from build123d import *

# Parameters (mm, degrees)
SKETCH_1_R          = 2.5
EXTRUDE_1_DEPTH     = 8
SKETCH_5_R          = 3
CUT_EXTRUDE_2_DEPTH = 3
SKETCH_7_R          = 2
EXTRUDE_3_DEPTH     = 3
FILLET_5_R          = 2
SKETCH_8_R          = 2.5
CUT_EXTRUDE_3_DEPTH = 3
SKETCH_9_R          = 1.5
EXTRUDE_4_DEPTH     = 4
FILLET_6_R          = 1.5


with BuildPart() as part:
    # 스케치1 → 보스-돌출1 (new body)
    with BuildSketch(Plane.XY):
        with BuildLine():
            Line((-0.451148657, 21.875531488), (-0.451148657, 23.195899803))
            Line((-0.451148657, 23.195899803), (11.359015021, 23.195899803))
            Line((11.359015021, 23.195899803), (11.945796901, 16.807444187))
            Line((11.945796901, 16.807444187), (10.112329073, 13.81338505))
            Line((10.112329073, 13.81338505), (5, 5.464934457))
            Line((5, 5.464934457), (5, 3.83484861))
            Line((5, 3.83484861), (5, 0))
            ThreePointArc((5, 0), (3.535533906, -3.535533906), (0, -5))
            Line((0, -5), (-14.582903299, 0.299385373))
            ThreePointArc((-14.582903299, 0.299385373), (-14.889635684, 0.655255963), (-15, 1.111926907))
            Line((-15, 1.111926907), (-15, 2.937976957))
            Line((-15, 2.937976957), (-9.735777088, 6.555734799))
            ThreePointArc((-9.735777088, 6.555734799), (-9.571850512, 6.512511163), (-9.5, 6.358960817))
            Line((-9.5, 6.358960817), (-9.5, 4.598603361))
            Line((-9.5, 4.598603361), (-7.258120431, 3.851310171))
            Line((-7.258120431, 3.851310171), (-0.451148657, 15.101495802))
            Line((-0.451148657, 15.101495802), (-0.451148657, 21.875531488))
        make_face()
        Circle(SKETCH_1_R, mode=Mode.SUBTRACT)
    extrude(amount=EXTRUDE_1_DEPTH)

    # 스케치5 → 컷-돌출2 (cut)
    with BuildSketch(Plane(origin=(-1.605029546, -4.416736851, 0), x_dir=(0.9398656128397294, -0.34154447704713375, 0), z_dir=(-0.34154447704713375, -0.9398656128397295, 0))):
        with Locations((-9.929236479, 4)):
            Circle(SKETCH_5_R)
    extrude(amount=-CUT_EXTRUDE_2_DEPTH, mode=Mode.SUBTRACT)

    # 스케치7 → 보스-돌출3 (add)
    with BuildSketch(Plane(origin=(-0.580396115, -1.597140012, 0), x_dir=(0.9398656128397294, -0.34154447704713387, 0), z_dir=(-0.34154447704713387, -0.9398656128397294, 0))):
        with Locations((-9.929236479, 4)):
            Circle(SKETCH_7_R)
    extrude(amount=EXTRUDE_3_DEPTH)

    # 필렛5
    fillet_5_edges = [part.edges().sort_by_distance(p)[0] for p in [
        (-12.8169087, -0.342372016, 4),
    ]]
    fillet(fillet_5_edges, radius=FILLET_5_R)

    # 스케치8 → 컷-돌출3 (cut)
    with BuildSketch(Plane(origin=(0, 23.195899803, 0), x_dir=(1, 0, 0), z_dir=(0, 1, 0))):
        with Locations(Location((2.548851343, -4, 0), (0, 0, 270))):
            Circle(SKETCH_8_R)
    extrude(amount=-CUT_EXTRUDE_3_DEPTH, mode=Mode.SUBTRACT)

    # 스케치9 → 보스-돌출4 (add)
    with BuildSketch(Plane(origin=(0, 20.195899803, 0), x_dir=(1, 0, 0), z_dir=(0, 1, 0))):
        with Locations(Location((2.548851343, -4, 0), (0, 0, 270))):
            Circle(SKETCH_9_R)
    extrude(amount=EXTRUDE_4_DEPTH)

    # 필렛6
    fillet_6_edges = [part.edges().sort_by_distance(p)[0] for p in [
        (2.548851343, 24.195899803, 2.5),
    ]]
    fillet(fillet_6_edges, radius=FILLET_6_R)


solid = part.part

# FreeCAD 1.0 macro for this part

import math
import FreeCAD as App
import Part
import Sketcher
from FreeCAD import Vector


def edges_at(feature, points):
    """Names of the edges that pass closest to the given points."""
    edges = feature.Shape.Edges
    near = lambda p: min(range(len(edges)), key=lambda i: edges[i].distToShape(Part.Vertex(*p))[0])
    return sorted({f"Edge{near(p) + 1}" for p in points})

doc = App.newDocument("Part")
params = doc.addObject("Spreadsheet::Sheet", "Params")
for row, (alias, value) in enumerate([
    ("sketch1_diameter", "5 mm"),
    ("sketch1_radius", "1 mm"),
    ("sketch1_radius2", "5 mm"),
    ("sketch1_radius3", "0.2 mm"),
    ("pad1_length", "8 mm"),
    ("sketch2_diameter", "6 mm"),
    ("pocket1_length", "3 mm"),
    ("sketch3_diameter", "4 mm"),
    ("pad2_length", "3 mm"),
    ("fillet_radius", "2 mm"),
    ("sketch4_diameter", "5 mm"),
    ("pocket2_length", "3 mm"),
    ("sketch5_diameter", "3 mm"),
    ("pad3_length", "4 mm"),
    ("fillet2_radius", "1.5 mm"),
], start=1):
    params.set(f"A{row}", alias)
    params.set(f"B{row}", "=" + value)
    params.setAlias(f"B{row}", alias)

body = doc.addObject("PartDesign::Body", "Body")

# Sketch on XY plane
sketch1 = body.newObject("Sketcher::SketchObject", "Sketch")
sketch1.AttachmentSupport = (doc.getObject("XY_Plane"), [""])
sketch1.MapMode = "FlatFace"
sketch1.addGeometry(Part.LineSegment(Vector(11.36, 23.2, 0), Vector(-0.45, 23.2, 0)), False)
sketch1.addGeometry(Part.LineSegment(Vector(-0.45, 23.2, 0), Vector(-0.45, 15.1, 0)), False)
sketch1.addGeometry(Part.LineSegment(Vector(-0.45, 15.1, 0), Vector(-7.26, 3.85, 0)), False)
sketch1.addGeometry(Part.LineSegment(Vector(-7.26, 3.85, 0), Vector(-9.5, 4.6, 0)), False)
sketch1.addGeometry(Part.LineSegment(Vector(-9.5, 4.6, 0), Vector(-9.5, 6.36, 0)), False)
sketch1.addGeometry(Part.ArcOfCircle(Part.Circle(Vector(-9.7, 6.36, 0), Vector(0, 0, 1), 0.2), math.radians(0), math.radians(100)), False)
sketch1.addGeometry(Part.LineSegment(Vector(-9.74, 6.56, 0), Vector(-15, 2.94, 0)), False)
sketch1.addGeometry(Part.LineSegment(Vector(-15, 2.94, 0), Vector(-15, 1.11, 0)), False)
sketch1.addGeometry(Part.ArcOfCircle(Part.Circle(Vector(-14, 1.11, 0), Vector(0, 0, 1), 1), math.radians(180), math.radians(234)), False)
sketch1.addGeometry(Part.LineSegment(Vector(-14.58, 0.3, 0), Vector(0, -5, 0)), False)
sketch1.addGeometry(Part.ArcOfCircle(Part.Circle(Vector(0, 0, 0), Vector(0, 0, 1), 5), math.radians(-90), math.radians(0)), False)
sketch1.addGeometry(Part.LineSegment(Vector(5, 0, 0), Vector(5, 5.46, 0)), False)
sketch1.addGeometry(Part.LineSegment(Vector(5, 5.46, 0), Vector(10.11, 13.81, 0)), False)
sketch1.addGeometry(Part.LineSegment(Vector(10.11, 13.81, 0), Vector(11.95, 16.81, 0)), False)
sketch1.addGeometry(Part.LineSegment(Vector(11.95, 16.81, 0), Vector(11.36, 23.2, 0)), False)
sketch1.addGeometry(Part.Circle(Vector(0, 0, 0), Vector(0, 0, 1), 2.5), False)
sketch1.addConstraint(Sketcher.Constraint("Coincident", 0, 2, 1, 1))
sketch1.addConstraint(Sketcher.Constraint("Coincident", 1, 2, 2, 1))
sketch1.addConstraint(Sketcher.Constraint("Coincident", 2, 2, 3, 1))
sketch1.addConstraint(Sketcher.Constraint("Coincident", 3, 2, 4, 1))
sketch1.addConstraint(Sketcher.Constraint("Tangent", 4, 2, 5, 1))
sketch1.addConstraint(Sketcher.Constraint("Coincident", 5, 2, 6, 1))
sketch1.addConstraint(Sketcher.Constraint("Coincident", 6, 2, 7, 1))
sketch1.addConstraint(Sketcher.Constraint("Tangent", 7, 2, 8, 1))
sketch1.addConstraint(Sketcher.Constraint("Coincident", 8, 2, 9, 1))
sketch1.addConstraint(Sketcher.Constraint("Coincident", 9, 2, 10, 1))
sketch1.addConstraint(Sketcher.Constraint("Tangent", 10, 2, 11, 1))
sketch1.addConstraint(Sketcher.Constraint("Coincident", 11, 2, 12, 1))
sketch1.addConstraint(Sketcher.Constraint("Coincident", 12, 2, 13, 1))
sketch1.addConstraint(Sketcher.Constraint("Coincident", 13, 2, 14, 1))
sketch1.addConstraint(Sketcher.Constraint("Coincident", 14, 2, 0, 1))
sketch1.addConstraint(Sketcher.Constraint("Horizontal", 0))
sketch1.addConstraint(Sketcher.Constraint("Vertical", 1))
sketch1.addConstraint(Sketcher.Constraint("Vertical", 4))
sketch1.addConstraint(Sketcher.Constraint("Vertical", 7))
sketch1.addConstraint(Sketcher.Constraint("Vertical", 11))
sketch1.addConstraint(Sketcher.Constraint("Coincident", 10, 3, -1, 1))
sketch1.addConstraint(Sketcher.Constraint("Coincident", 15, 3, -1, 1))
sketch1.addConstraint(Sketcher.Constraint("PointOnObject", 9, 2, -2))
sketch1.addConstraint(Sketcher.Constraint("Parallel", 12, 13))
sketch1.addConstraint(Sketcher.Constraint("Diameter", 15, 5.0))
sketch1.addConstraint(Sketcher.Constraint("Radius", 8, 1.0))
sketch1.addConstraint(Sketcher.Constraint("Radius", 10, 5.0))
sketch1.addConstraint(Sketcher.Constraint("Radius", 5, 0.2))
sketch1.addConstraint(Sketcher.Constraint("DistanceX", 8, 3, -1, 1, 14.0))
sketch1.addConstraint(Sketcher.Constraint("DistanceX", 5, 3, -1, 1, 9.7))
sketch1.addConstraint(Sketcher.Constraint("DistanceY", 7, 2, 7, 1, 1.82605))
sketch1.addConstraint(Sketcher.Constraint("DistanceY", -1, 1, 0, 2, 23.1959))
sketch1.addConstraint(Sketcher.Constraint("Distance", 3, 2.363149))
sketch1.addConstraint(Sketcher.Constraint("Distance", 12, 9.789409))
sketch1.addConstraint(Sketcher.Constraint("Distance", 13, 3.51084))
sketch1.addConstraint(Sketcher.Constraint("DistanceX", 0, 2, 0, 1, 11.810164))
sketch1.addConstraint(Sketcher.Constraint("DistanceY", 1, 2, 1, 1, 8.094404))
sketch1.addConstraint(Sketcher.Constraint("DistanceY", 4, 1, 4, 2, 1.760357))
sketch1.addConstraint(Sketcher.Constraint("DistanceY", 11, 1, 11, 2, 5.464934))
sketch1.addConstraint(Sketcher.Constraint("DistanceY", -1, 1, 5, 3, 6.358961))
sketch1.addConstraint(Sketcher.Constraint("DistanceX", 0, 2, -1, 1, 0.451149))
sketch1.addConstraint(Sketcher.Constraint("DistanceX", 2, 2, -1, 1, 7.25812))
sketch1.addConstraint(Sketcher.Constraint("DistanceX", -1, 1, 12, 2, 10.112329))
sketch1.addConstraint(Sketcher.Constraint("DistanceY", 8, 3, 1, 2, 13.989569))
sketch1.addConstraint(Sketcher.Constraint("DistanceY", 3, 2, 5, 2, 1.957131))
sketch1.addConstraint(Sketcher.Constraint("DistanceY", 8, 2, 7, 2, 0.812542))
sketch1.setExpression("Constraints[24]", "Params.sketch1_diameter")
sketch1.setExpression("Constraints[25]", "Params.sketch1_radius")
sketch1.setExpression("Constraints[26]", "Params.sketch1_radius2")
sketch1.setExpression("Constraints[27]", "Params.sketch1_radius3")
pad1 = body.newObject("PartDesign::Pad", "Pad")
pad1.Profile = sketch1
pad1.setExpression("Length", "Params.pad1_length")

# Sketch on an angled plane
sketch2 = body.newObject("Sketcher::SketchObject", "Sketch001")
sketch2.Placement = App.Placement(Vector(-1.60503, -4.416737, 0), App.Rotation(Vector(0.939865613, -0.341544477, 0), Vector(0, 0, 1), Vector(-0.341544477, -0.939865613, 0), "ZXY"))
sketch2.addGeometry(Part.Circle(Vector(-9.9, 4, 0), Vector(0, 0, 1), 3), False)
sketch2.addConstraint(Sketcher.Constraint("Diameter", 0, 6.0))
sketch2.addConstraint(Sketcher.Constraint("DistanceY", -1, 1, 0, 3, 4.0))
sketch2.addConstraint(Sketcher.Constraint("DistanceX", 0, 3, -1, 1, 9.929236))
sketch2.setExpression("Constraints[0]", "Params.sketch2_diameter")
pocket1 = body.newObject("PartDesign::Pocket", "Pocket")
pocket1.Profile = sketch2
pocket1.setExpression("Length", "Params.pocket1_length")

# Sketch on an angled plane
sketch3 = body.newObject("Sketcher::SketchObject", "Sketch002")
sketch3.Placement = App.Placement(Vector(-0.580396, -1.59714, 0), App.Rotation(Vector(0.939865613, -0.341544477, 0), Vector(0, 0, 1), Vector(-0.341544477, -0.939865613, 0), "ZXY"))
sketch3.addGeometry(Part.Circle(Vector(-9.9, 4, 0), Vector(0, 0, 1), 2), False)
sketch3.addConstraint(Sketcher.Constraint("Diameter", 0, 4.0))
sketch3.addConstraint(Sketcher.Constraint("DistanceY", -1, 1, 0, 3, 4.0))
sketch3.addConstraint(Sketcher.Constraint("DistanceX", 0, 3, -1, 1, 9.929236))
sketch3.setExpression("Constraints[0]", "Params.sketch3_diameter")
pad2 = body.newObject("PartDesign::Pad", "Pad001")
pad2.Profile = sketch3
pad2.setExpression("Length", "Params.pad2_length")
doc.recompute()

fillet = body.newObject("PartDesign::Fillet", "Fillet")
fillet.Base = (pad2, edges_at(pad2, [(-12.817, -0.342, 4)]))
fillet.setExpression("Radius", "Params.fillet_radius")

# Sketch on XZ plane
sketch4 = body.newObject("Sketcher::SketchObject", "Sketch003")
sketch4.AttachmentSupport = (doc.getObject("XZ_Plane"), [""])
sketch4.MapMode = "FlatFace"
sketch4.AttachmentOffset = App.Placement(Vector(0, 0, -23.1959), App.Rotation())
sketch4.addGeometry(Part.Circle(Vector(2.5, 4, 0), Vector(0, 0, 1), 2.5), False)
sketch4.addConstraint(Sketcher.Constraint("Diameter", 0, 5.0))
sketch4.addConstraint(Sketcher.Constraint("DistanceY", -1, 1, 0, 3, 4.0))
sketch4.addConstraint(Sketcher.Constraint("DistanceX", -1, 1, 0, 3, 2.548851))
sketch4.setExpression("Constraints[0]", "Params.sketch4_diameter")
pocket2 = body.newObject("PartDesign::Pocket", "Pocket001")
pocket2.Profile = sketch4
pocket2.setExpression("Length", "Params.pocket2_length")
pocket2.Reversed = True

# Sketch on XZ plane
sketch5 = body.newObject("Sketcher::SketchObject", "Sketch004")
sketch5.AttachmentSupport = (doc.getObject("XZ_Plane"), [""])
sketch5.MapMode = "FlatFace"
sketch5.AttachmentOffset = App.Placement(Vector(0, 0, -20.1959), App.Rotation())
sketch5.addGeometry(Part.Circle(Vector(2.5, 4, 0), Vector(0, 0, 1), 1.5), False)
sketch5.addConstraint(Sketcher.Constraint("Diameter", 0, 3.0))
sketch5.addConstraint(Sketcher.Constraint("DistanceY", -1, 1, 0, 3, 4.0))
sketch5.addConstraint(Sketcher.Constraint("DistanceX", -1, 1, 0, 3, 2.548851))
sketch5.setExpression("Constraints[0]", "Params.sketch5_diameter")
pad3 = body.newObject("PartDesign::Pad", "Pad002")
pad3.Profile = sketch5
pad3.setExpression("Length", "Params.pad3_length")
pad3.Reversed = True
doc.recompute()

fillet2 = body.newObject("PartDesign::Fillet", "Fillet001")
fillet2.Base = (pad3, edges_at(pad3, [(2.549, 24.196, 2.5)]))
fillet2.setExpression("Radius", "Params.fillet2_radius")

doc.recompute()
